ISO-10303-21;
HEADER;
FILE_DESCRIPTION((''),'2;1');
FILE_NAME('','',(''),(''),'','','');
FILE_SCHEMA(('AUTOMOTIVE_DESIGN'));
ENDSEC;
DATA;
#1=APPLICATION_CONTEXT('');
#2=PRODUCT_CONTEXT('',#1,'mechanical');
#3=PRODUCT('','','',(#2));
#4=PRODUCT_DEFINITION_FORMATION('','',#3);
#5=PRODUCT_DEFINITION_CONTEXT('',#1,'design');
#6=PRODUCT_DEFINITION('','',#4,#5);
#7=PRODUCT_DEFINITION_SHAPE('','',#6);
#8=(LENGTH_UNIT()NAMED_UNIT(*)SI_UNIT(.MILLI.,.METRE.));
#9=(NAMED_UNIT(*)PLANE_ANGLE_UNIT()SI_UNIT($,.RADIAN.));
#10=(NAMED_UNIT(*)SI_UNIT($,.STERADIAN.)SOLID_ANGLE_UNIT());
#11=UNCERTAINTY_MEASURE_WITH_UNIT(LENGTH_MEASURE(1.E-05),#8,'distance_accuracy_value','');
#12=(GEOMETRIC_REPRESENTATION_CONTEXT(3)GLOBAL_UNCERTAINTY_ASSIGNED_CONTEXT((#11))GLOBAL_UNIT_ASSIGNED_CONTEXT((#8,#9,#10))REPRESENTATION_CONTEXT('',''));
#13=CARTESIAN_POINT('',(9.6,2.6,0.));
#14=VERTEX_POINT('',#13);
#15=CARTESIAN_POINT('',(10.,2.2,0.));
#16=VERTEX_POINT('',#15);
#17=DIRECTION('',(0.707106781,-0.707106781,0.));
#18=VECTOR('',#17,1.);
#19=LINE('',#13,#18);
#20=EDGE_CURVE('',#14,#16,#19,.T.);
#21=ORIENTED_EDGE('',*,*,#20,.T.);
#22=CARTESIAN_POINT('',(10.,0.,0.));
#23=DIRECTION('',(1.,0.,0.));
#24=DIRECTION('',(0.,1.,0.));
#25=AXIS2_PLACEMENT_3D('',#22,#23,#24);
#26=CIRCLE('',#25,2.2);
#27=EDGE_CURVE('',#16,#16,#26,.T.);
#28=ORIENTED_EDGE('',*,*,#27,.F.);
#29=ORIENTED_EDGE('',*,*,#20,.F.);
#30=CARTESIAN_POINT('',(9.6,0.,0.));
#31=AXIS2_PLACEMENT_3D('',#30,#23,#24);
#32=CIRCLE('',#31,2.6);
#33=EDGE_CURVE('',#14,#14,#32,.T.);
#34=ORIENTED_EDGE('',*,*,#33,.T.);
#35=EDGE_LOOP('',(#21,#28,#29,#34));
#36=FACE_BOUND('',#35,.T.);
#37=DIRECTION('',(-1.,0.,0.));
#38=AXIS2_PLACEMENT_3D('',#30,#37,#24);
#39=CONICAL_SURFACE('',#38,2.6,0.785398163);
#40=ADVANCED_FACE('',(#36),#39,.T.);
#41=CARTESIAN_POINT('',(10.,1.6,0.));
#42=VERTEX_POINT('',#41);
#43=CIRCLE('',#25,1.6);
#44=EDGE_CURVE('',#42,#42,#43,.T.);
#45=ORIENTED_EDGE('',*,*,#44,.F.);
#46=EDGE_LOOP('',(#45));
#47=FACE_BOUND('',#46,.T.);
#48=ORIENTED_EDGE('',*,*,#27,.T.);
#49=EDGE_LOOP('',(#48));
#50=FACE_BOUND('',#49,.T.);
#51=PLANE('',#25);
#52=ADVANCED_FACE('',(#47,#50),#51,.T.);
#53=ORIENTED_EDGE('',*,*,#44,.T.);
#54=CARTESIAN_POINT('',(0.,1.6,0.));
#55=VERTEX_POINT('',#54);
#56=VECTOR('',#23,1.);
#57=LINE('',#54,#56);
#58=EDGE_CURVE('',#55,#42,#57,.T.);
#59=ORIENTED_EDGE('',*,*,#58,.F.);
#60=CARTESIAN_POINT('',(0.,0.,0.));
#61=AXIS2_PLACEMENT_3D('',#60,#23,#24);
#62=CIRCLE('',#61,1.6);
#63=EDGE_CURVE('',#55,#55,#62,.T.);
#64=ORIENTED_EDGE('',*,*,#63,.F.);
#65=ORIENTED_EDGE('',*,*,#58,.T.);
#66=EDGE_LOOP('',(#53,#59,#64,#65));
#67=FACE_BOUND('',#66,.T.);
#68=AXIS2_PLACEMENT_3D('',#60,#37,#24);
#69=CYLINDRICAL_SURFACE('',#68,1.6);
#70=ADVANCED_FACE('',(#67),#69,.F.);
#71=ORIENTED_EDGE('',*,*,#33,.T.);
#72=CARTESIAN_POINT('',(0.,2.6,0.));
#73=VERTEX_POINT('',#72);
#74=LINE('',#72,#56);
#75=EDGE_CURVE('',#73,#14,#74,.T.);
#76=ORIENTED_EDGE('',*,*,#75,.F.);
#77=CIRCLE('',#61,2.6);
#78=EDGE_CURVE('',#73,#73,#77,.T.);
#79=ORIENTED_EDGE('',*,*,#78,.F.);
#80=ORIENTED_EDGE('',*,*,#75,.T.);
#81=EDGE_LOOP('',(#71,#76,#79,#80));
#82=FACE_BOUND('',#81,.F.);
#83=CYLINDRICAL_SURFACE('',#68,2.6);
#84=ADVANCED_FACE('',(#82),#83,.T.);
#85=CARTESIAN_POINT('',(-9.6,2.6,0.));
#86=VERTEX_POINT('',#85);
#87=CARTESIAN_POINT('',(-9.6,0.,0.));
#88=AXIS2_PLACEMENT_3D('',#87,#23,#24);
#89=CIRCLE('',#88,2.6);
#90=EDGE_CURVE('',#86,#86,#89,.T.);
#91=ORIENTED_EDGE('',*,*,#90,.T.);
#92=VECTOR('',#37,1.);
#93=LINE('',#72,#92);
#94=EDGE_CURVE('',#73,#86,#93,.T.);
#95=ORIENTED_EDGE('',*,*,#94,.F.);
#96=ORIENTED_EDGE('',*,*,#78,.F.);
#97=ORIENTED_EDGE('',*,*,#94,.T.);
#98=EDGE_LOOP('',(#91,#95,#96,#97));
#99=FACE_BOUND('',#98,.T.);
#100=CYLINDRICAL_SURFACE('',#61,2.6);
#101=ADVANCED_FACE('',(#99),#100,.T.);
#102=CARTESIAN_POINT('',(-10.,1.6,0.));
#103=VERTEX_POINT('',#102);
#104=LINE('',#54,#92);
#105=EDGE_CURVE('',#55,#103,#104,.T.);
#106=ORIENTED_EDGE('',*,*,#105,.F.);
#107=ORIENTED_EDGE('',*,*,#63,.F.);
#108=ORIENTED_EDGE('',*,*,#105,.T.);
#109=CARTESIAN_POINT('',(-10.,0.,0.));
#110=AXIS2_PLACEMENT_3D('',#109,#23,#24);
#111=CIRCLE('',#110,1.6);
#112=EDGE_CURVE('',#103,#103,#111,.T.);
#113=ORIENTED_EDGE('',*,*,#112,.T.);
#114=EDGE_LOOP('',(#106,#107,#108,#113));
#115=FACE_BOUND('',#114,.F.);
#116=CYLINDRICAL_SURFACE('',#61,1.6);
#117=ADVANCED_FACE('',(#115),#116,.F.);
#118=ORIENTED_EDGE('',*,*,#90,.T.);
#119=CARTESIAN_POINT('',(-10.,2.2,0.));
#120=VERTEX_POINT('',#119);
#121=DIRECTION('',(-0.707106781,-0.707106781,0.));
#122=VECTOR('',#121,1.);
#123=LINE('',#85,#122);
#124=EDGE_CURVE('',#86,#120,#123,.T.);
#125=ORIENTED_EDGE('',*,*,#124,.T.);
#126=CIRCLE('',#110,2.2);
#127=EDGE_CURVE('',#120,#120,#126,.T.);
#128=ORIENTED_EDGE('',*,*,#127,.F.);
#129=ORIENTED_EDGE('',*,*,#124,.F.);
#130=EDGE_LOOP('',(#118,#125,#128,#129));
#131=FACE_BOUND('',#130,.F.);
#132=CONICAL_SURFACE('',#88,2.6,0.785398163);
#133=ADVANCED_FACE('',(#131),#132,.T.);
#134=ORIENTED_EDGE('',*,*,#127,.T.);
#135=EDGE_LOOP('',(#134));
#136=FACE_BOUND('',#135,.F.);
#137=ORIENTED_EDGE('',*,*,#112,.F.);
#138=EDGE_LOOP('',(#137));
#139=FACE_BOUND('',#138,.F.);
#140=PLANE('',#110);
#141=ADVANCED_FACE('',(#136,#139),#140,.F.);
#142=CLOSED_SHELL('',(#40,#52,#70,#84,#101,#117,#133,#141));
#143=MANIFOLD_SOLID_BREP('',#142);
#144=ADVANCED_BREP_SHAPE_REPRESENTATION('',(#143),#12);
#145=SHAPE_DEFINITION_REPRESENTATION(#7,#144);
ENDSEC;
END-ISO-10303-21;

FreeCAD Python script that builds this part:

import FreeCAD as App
import Part
import Sketcher

V = App.Vector


def edges_at(feature, points):
    """Names of the edges that pass closest to the given points."""
    edges = feature.Shape.Edges
    near = lambda p: min(range(len(edges)), key=lambda i: edges[i].distToShape(Part.Vertex(*p))[0])
    return sorted({f"Edge{near(p) + 1}" for p in points})

doc = App.newDocument("Part")
body = doc.addObject("PartDesign::Body", "Body")

# Sketch on YZ plane
sketch1 = body.newObject("Sketcher::SketchObject", "Sketch")
sketch1.AttachmentSupport = (doc.getObject("YZ_Plane"), [""])
sketch1.MapMode = "FlatFace"
sketch1.addGeometry(Part.Circle(V(0, 0, 0), V(0, 0, 1), 2.6), False)
sketch1.addGeometry(Part.Circle(V(0, 0, 0), V(0, 0, 1), 1.6), False)
sketch1.addConstraint(Sketcher.Constraint("Coincident", 0, 3, -1, 1))
sketch1.addConstraint(Sketcher.Constraint("Coincident", 1, 3, -1, 1))
sketch1.addConstraint(Sketcher.Constraint("Diameter", 1, 3.2))
sketch1.addConstraint(Sketcher.Constraint("Diameter", 0, 5.2))
pad1 = body.newObject("PartDesign::Pad", "Pad")
pad1.Profile = sketch1
pad1.Length = 20
pad1.Midplane = True
doc.recompute()

chamfer = body.newObject("PartDesign::Chamfer", "Chamfer")
chamfer.Base = (pad1, edges_at(pad1, [(10, -2.6, 0), (-10, -2.6, 0)]))
chamfer.Size = 0.4

doc.recompute()
